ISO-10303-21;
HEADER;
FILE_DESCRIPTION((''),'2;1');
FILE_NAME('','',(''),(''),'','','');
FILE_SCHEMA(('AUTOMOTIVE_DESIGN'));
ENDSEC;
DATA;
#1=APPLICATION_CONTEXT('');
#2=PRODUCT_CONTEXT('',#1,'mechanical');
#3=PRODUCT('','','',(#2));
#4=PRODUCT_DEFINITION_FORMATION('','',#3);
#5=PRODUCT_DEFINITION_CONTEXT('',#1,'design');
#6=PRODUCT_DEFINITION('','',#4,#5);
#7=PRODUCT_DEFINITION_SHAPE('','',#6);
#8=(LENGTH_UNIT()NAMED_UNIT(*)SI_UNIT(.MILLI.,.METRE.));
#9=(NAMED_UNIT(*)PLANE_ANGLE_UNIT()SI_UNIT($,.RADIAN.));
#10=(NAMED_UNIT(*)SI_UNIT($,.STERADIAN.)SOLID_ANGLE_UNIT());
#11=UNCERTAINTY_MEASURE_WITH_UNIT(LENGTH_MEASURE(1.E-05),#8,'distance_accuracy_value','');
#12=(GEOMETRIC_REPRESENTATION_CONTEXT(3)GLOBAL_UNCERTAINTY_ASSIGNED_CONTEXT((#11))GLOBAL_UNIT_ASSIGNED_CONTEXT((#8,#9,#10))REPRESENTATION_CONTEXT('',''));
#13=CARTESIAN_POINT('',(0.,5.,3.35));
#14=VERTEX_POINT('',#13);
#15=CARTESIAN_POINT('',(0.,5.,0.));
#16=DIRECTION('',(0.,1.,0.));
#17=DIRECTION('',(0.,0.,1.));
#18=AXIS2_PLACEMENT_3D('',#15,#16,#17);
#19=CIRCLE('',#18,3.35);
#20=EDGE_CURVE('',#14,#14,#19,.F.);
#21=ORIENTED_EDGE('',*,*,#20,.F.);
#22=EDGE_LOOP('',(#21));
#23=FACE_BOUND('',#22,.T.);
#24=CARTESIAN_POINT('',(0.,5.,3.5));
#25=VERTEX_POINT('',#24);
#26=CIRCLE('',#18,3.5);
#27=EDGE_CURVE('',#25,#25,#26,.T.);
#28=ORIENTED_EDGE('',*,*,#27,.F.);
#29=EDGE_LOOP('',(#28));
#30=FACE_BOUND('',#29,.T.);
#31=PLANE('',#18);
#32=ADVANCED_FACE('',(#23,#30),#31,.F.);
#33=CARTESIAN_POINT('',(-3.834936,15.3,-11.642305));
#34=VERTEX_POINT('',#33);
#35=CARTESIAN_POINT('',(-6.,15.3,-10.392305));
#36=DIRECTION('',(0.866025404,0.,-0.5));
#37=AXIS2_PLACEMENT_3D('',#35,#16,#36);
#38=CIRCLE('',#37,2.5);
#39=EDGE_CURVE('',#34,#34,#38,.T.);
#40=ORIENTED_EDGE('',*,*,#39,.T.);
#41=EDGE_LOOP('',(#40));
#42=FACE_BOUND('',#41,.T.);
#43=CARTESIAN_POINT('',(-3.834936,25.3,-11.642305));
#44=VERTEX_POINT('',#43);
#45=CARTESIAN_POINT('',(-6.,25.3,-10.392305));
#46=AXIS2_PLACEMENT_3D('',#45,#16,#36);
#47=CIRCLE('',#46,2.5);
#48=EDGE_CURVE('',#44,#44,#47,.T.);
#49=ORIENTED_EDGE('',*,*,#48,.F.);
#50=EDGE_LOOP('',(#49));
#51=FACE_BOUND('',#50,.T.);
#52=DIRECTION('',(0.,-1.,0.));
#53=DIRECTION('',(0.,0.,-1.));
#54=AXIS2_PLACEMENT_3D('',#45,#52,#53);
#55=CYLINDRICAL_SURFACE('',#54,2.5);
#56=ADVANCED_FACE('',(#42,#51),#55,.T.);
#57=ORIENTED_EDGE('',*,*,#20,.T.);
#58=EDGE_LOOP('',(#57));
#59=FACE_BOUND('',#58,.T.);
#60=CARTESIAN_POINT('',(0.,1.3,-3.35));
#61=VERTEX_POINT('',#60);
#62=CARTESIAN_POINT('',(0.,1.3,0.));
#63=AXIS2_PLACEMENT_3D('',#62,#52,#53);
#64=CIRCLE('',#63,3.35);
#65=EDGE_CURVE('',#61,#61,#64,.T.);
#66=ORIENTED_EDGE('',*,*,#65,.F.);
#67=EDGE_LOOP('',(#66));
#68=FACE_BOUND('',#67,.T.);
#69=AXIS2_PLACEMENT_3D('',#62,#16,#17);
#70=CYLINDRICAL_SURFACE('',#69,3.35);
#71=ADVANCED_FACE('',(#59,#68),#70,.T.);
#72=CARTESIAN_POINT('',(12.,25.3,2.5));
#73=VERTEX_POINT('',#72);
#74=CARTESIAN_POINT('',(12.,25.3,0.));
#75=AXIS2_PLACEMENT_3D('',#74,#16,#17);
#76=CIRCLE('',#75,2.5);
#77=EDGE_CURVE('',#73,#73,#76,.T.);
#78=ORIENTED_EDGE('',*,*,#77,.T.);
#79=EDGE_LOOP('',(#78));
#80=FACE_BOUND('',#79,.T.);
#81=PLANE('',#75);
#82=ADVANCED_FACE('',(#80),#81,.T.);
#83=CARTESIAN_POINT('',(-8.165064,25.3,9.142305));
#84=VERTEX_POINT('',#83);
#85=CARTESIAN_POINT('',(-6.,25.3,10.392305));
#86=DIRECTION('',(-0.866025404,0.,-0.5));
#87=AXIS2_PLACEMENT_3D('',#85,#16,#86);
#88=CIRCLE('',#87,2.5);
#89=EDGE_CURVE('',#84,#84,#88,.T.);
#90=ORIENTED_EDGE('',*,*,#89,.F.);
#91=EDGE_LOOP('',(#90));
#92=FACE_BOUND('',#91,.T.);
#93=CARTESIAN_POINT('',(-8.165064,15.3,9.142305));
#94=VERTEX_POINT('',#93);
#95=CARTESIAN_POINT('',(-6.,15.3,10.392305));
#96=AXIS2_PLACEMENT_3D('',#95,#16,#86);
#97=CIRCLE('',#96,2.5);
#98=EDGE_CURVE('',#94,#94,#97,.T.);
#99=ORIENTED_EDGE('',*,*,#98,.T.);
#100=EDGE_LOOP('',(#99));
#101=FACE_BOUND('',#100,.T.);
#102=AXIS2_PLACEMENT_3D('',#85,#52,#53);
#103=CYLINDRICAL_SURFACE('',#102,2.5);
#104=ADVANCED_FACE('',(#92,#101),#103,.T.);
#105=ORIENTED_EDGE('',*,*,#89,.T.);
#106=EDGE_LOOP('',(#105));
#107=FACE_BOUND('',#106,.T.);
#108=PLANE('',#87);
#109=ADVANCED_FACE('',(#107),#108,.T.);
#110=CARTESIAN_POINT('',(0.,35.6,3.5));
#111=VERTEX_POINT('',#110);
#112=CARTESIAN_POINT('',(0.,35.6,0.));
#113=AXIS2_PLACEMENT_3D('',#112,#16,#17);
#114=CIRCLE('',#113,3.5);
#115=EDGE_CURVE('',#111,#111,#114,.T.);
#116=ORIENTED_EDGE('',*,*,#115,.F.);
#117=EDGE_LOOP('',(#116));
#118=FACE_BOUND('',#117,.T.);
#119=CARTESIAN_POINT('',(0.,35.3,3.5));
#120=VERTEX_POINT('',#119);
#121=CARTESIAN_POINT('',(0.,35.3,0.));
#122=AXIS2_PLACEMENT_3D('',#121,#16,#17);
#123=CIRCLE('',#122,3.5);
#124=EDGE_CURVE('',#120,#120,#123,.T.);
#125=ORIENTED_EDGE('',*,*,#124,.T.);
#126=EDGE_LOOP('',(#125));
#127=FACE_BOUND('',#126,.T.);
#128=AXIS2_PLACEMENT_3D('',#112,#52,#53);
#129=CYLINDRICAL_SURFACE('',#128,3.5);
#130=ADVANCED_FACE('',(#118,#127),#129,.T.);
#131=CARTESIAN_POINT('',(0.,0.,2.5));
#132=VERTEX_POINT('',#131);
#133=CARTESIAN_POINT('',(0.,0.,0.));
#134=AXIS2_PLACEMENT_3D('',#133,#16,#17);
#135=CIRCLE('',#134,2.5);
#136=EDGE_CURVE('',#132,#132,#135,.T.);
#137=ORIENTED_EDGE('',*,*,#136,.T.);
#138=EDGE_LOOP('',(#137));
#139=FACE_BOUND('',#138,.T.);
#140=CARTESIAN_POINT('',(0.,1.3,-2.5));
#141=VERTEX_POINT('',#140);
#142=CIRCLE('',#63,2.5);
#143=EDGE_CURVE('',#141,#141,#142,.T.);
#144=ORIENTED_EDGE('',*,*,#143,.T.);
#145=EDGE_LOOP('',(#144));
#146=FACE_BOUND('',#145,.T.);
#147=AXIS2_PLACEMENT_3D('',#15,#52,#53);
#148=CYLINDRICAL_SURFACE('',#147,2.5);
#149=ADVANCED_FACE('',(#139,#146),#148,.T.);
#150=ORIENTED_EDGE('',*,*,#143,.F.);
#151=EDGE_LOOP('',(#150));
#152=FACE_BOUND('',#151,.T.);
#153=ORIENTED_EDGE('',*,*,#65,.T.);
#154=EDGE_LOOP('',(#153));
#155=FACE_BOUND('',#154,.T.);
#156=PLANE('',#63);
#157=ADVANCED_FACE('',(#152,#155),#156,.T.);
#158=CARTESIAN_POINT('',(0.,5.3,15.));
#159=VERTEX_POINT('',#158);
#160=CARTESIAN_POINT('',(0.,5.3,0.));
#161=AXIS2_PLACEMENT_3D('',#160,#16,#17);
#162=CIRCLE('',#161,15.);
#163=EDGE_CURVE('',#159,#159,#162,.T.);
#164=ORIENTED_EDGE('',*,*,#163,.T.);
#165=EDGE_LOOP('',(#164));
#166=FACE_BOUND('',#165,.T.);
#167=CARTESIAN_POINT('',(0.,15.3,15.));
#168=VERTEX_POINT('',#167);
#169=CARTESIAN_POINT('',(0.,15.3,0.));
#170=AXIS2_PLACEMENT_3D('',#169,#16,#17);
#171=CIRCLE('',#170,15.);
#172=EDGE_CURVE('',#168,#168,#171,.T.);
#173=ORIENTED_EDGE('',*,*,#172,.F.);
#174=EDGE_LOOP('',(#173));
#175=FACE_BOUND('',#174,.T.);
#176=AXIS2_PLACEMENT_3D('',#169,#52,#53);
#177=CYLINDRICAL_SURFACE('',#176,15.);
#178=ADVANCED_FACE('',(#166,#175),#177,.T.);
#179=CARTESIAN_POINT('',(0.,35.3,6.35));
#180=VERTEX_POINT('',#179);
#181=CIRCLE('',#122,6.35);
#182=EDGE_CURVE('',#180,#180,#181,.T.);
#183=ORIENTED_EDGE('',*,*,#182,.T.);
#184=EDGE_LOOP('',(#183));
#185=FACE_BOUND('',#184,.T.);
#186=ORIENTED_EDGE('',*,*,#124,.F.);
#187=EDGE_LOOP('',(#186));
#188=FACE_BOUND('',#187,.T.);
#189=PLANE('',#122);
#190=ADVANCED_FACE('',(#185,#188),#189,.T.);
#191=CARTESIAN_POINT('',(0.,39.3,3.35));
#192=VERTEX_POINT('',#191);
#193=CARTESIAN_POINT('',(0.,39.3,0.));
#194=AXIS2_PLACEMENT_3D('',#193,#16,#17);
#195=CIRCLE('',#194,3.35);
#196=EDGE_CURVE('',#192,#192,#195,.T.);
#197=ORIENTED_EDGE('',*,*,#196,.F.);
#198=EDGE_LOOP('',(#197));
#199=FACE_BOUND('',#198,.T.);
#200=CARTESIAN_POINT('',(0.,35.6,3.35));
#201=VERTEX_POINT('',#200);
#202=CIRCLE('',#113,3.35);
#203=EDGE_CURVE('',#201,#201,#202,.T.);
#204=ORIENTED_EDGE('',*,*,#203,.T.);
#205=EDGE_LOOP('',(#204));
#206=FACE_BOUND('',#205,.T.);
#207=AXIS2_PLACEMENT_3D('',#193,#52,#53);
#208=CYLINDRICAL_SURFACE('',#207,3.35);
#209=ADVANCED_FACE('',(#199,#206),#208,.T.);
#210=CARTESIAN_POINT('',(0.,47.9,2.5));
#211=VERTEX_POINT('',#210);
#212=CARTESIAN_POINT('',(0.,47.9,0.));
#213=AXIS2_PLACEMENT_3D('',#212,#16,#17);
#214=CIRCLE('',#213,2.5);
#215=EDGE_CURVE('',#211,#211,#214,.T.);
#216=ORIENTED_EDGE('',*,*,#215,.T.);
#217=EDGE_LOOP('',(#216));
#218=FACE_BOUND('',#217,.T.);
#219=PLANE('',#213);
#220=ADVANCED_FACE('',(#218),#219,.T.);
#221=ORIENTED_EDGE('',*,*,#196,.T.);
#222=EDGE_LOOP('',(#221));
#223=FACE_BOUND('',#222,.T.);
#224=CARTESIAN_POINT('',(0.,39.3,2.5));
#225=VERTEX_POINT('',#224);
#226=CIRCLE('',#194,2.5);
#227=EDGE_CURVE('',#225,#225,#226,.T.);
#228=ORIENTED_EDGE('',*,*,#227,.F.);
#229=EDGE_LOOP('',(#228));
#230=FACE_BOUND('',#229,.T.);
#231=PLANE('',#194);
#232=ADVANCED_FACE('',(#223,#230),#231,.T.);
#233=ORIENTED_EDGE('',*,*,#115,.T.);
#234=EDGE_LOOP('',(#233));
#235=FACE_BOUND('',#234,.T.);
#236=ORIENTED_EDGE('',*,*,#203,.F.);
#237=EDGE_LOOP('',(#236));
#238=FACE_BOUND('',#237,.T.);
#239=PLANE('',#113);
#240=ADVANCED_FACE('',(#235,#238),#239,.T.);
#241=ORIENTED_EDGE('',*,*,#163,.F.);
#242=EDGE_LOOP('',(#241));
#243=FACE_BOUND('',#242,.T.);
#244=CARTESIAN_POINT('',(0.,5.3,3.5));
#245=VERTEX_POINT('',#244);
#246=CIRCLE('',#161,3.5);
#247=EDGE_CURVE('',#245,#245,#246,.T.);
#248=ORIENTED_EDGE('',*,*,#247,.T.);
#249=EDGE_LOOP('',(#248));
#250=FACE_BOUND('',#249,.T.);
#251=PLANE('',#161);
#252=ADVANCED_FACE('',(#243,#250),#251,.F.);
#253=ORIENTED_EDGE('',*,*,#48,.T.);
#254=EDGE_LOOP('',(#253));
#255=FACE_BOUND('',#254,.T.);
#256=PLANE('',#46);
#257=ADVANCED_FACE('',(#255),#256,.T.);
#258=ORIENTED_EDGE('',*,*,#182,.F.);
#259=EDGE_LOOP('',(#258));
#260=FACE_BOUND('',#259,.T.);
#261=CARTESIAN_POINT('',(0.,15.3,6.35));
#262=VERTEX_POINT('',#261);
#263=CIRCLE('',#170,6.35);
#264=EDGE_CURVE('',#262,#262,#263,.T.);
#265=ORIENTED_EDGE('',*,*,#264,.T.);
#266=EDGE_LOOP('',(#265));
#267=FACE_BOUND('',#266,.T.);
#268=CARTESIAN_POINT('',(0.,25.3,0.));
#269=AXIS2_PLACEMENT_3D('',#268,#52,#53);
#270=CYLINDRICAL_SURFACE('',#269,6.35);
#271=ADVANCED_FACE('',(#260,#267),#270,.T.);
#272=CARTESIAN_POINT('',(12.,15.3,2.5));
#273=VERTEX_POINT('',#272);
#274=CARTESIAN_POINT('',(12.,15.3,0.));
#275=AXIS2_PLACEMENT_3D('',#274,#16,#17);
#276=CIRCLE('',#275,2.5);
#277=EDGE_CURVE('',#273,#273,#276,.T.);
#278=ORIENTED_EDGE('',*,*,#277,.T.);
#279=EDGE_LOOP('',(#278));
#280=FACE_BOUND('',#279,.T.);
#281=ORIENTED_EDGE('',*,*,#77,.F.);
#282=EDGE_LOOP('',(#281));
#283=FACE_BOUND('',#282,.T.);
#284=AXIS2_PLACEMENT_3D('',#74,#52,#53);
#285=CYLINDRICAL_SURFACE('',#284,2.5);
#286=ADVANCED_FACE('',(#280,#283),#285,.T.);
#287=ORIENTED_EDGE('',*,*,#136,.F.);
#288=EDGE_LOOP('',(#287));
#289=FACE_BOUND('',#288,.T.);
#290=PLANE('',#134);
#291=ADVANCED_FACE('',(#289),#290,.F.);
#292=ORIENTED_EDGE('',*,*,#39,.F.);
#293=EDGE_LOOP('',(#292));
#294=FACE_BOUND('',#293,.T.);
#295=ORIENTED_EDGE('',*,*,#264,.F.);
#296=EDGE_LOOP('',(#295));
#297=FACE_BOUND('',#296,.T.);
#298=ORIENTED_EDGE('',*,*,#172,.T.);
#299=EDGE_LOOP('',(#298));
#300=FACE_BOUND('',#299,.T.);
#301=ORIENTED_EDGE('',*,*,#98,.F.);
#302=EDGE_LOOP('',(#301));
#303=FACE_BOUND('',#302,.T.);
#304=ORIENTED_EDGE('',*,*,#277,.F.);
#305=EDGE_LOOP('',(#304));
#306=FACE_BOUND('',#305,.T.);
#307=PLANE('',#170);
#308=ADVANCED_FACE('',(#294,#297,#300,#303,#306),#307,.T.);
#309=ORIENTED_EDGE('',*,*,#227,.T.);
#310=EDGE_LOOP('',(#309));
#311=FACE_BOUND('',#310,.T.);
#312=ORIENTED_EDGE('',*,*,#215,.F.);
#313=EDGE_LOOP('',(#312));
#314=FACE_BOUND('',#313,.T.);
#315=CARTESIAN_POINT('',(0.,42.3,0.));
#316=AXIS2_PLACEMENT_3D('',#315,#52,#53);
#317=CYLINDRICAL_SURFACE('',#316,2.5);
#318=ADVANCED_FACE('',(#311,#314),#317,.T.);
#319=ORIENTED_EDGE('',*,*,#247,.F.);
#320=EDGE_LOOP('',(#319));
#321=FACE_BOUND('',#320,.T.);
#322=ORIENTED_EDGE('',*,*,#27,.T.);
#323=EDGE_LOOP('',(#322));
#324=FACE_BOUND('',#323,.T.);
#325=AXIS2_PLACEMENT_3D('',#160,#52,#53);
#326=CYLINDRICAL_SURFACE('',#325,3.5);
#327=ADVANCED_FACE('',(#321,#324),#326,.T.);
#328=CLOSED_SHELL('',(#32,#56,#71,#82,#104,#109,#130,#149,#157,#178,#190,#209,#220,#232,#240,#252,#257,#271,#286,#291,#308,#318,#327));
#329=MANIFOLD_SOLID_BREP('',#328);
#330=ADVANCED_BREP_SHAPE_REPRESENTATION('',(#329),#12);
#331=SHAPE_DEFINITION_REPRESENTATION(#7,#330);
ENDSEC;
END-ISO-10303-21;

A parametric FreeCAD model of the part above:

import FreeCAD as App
import Part
import Sketcher

V = App.Vector
Q = App.Units.Quantity

doc = App.newDocument("Part")
params = doc.addObject("Spreadsheet::Sheet", "Params")
for row, (alias, value) in enumerate([
    ("sketch1_diameter", "5 mm"),
    ("pad1_length", "5 mm"),
    ("sketch2_diameter", "7 mm"),
    ("pad2_length", "0.3 mm"),
    ("sketch3_diameter", "30 mm"),
    ("pad3_length", "10 mm"),
    ("sketch4_diameter", "12.7 mm"),
    ("pad4_length", "10 mm"),
    ("sketch5_diameter", "12.7 mm"),
    ("pad5_length", "10 mm"),
    ("sketch6_diameter", "7 mm"),
    ("pad6_length", "0.3 mm"),
    ("sketch7_diameter", "6.7 mm"),
    ("pad7_length", "3.7 mm"),
    ("sketch8_diameter", "5 mm"),
    ("pad8_length", "3 mm"),
    ("sketch9_diameter", "6.7 mm"),
    ("pad9_length", "3.7 mm"),
    ("sketch10_diameter", "5 mm"),
    ("pad10_length", "5.6 mm"),
    ("sketch11_diameter", "5 mm"),
    ("pad11_length", "10 mm"),
], start=1):
    params.set(f"A{row}", alias)
    params.set(f"B{row}", "=" + value)
    params.setAlias(f"B{row}", alias)

body = doc.addObject("PartDesign::Body", "Body")

sketch1 = body.newObject("Sketcher::SketchObject", "Sketch")
sketch1.AttachmentSupport = (doc.getObject("XZ_Plane"), [""])
sketch1.MapMode = "FlatFace"
sketch1.addGeometry(Part.Circle(V(0, 0, 0), V(0, 0, 1), 2.5), False)
sketch1.addConstraint([
    Sketcher.Constraint("Coincident", 0, 3, -1, 1),
    Sketcher.Constraint("Diameter", 0, Q("5 mm")),
])
sketch1.setExpression("Constraints[1]", "Params.sketch1_diameter")
pad1 = body.newObject("PartDesign::Pad", "Pad")
pad1.Profile = sketch1
pad1.setExpression("Length", "Params.pad1_length")
pad1.Reversed = True

sketch2 = body.newObject("Sketcher::SketchObject", "Sketch001")
sketch2.AttachmentSupport = (doc.getObject("XZ_Plane"), [""])
sketch2.MapMode = "FlatFace"
sketch2.AttachmentOffset = App.Placement(V(0, 0, -5), App.Rotation())
sketch2.addGeometry(Part.Circle(V(0, 0, 0), V(0, 0, 1), 3.5), False)
sketch2.addConstraint([
    Sketcher.Constraint("Coincident", 0, 3, -1, 1),
    Sketcher.Constraint("Diameter", 0, Q("7 mm")),
])
sketch2.setExpression("Constraints[1]", "Params.sketch2_diameter")
pad2 = body.newObject("PartDesign::Pad", "Pad001")
pad2.Profile = sketch2
pad2.setExpression("Length", "Params.pad2_length")
pad2.Reversed = True

sketch3 = body.newObject("Sketcher::SketchObject", "Sketch002")
sketch3.AttachmentSupport = (doc.getObject("XZ_Plane"), [""])
sketch3.MapMode = "FlatFace"
sketch3.AttachmentOffset = App.Placement(V(0, 0, -5.3), App.Rotation())
sketch3.addGeometry(Part.Circle(V(0, 0, 0), V(0, 0, 1), 15), False)
sketch3.addConstraint([
    Sketcher.Constraint("Coincident", 0, 3, -1, 1),
    Sketcher.Constraint("Diameter", 0, Q("30 mm")),
])
sketch3.setExpression("Constraints[1]", "Params.sketch3_diameter")
pad3 = body.newObject("PartDesign::Pad", "Pad002")
pad3.Profile = sketch3
pad3.setExpression("Length", "Params.pad3_length")
pad3.Reversed = True

sketch4 = body.newObject("Sketcher::SketchObject", "Sketch003")
sketch4.AttachmentSupport = (doc.getObject("XZ_Plane"), [""])
sketch4.MapMode = "FlatFace"
sketch4.AttachmentOffset = App.Placement(V(0, 0, -15.3), App.Rotation())
sketch4.addGeometry(Part.Circle(V(0, 0, 0), V(0, 0, 1), 6), False)
sketch4.addConstraint([
    Sketcher.Constraint("Coincident", 0, 3, -1, 1),
    Sketcher.Constraint("Diameter", 0, Q("12.7 mm")),
])
sketch4.setExpression("Constraints[1]", "Params.sketch4_diameter")
pad4 = body.newObject("PartDesign::Pad", "Pad003")
pad4.Profile = sketch4
pad4.setExpression("Length", "Params.pad4_length")
pad4.Reversed = True

sketch5 = body.newObject("Sketcher::SketchObject", "Sketch004")
sketch5.AttachmentSupport = (doc.getObject("XZ_Plane"), [""])
sketch5.MapMode = "FlatFace"
sketch5.AttachmentOffset = App.Placement(V(0, 0, -25.3), App.Rotation())
sketch5.addGeometry(Part.Circle(V(0, 0, 0), V(0, 0, 1), 6), False)
sketch5.addConstraint([
    Sketcher.Constraint("Coincident", 0, 3, -1, 1),
    Sketcher.Constraint("Diameter", 0, Q("12.7 mm")),
])
sketch5.setExpression("Constraints[1]", "Params.sketch5_diameter")
pad5 = body.newObject("PartDesign::Pad", "Pad004")
pad5.Profile = sketch5
pad5.setExpression("Length", "Params.pad5_length")
pad5.Reversed = True

sketch6 = body.newObject("Sketcher::SketchObject", "Sketch005")
sketch6.AttachmentSupport = (doc.getObject("XZ_Plane"), [""])
sketch6.MapMode = "FlatFace"
sketch6.AttachmentOffset = App.Placement(V(0, 0, -35.3), App.Rotation())
sketch6.addGeometry(Part.Circle(V(0, 0, 0), V(0, 0, 1), 3.5), False)
sketch6.addConstraint([
    Sketcher.Constraint("Coincident", 0, 3, -1, 1),
    Sketcher.Constraint("Diameter", 0, Q("7 mm")),
])
sketch6.setExpression("Constraints[1]", "Params.sketch6_diameter")
pad6 = body.newObject("PartDesign::Pad", "Pad005")
pad6.Profile = sketch6
pad6.setExpression("Length", "Params.pad6_length")
pad6.Reversed = True

sketch7 = body.newObject("Sketcher::SketchObject", "Sketch006")
sketch7.AttachmentSupport = (doc.getObject("XZ_Plane"), [""])
sketch7.MapMode = "FlatFace"
sketch7.AttachmentOffset = App.Placement(V(0, 0, -35.6), App.Rotation())
sketch7.addGeometry(Part.Circle(V(0, 0, 0), V(0, 0, 1), 3.4), False)
sketch7.addConstraint([
    Sketcher.Constraint("Coincident", 0, 3, -1, 1),
    Sketcher.Constraint("Diameter", 0, Q("6.7 mm")),
])
sketch7.setExpression("Constraints[1]", "Params.sketch7_diameter")
pad7 = body.newObject("PartDesign::Pad", "Pad006")
pad7.Profile = sketch7
pad7.setExpression("Length", "Params.pad7_length")
pad7.Reversed = True

sketch8 = body.newObject("Sketcher::SketchObject", "Sketch007")
sketch8.AttachmentSupport = (doc.getObject("XZ_Plane"), [""])
sketch8.MapMode = "FlatFace"
sketch8.AttachmentOffset = App.Placement(V(0, 0, -39.3), App.Rotation())
sketch8.addGeometry(Part.Circle(V(0, 0, 0), V(0, 0, 1), 2.5), False)
sketch8.addConstraint([
    Sketcher.Constraint("Coincident", 0, 3, -1, 1),
    Sketcher.Constraint("Diameter", 0, Q("5 mm")),
])
sketch8.setExpression("Constraints[1]", "Params.sketch8_diameter")
pad8 = body.newObject("PartDesign::Pad", "Pad007")
pad8.Profile = sketch8
pad8.setExpression("Length", "Params.pad8_length")
pad8.Reversed = True

sketch9 = body.newObject("Sketcher::SketchObject", "Sketch008")
sketch9.AttachmentSupport = (doc.getObject("XZ_Plane"), [""])
sketch9.MapMode = "FlatFace"
sketch9.AttachmentOffset = App.Placement(V(0, 0, -1.3), App.Rotation())
sketch9.addGeometry(Part.Circle(V(0, 0, 0), V(0, 0, 1), 3.4), False)
sketch9.addConstraint([
    Sketcher.Constraint("Coincident", 0, 3, -1, 1),
    Sketcher.Constraint("Diameter", 0, Q("6.7 mm")),
])
sketch9.setExpression("Constraints[1]", "Params.sketch9_diameter")
pad9 = body.newObject("PartDesign::Pad", "Pad008")
pad9.Profile = sketch9
pad9.setExpression("Length", "Params.pad9_length")
pad9.Reversed = True

sketch10 = body.newObject("Sketcher::SketchObject", "Sketch009")
sketch10.AttachmentSupport = (doc.getObject("XZ_Plane"), [""])
sketch10.MapMode = "FlatFace"
sketch10.AttachmentOffset = App.Placement(V(0, 0, -42.3), App.Rotation())
sketch10.addGeometry(Part.Circle(V(0, 0, 0), V(0, 0, 1), 2.5), False)
sketch10.addConstraint([
    Sketcher.Constraint("Coincident", 0, 3, -1, 1),
    Sketcher.Constraint("Diameter", 0, Q("5 mm")),
])
sketch10.setExpression("Constraints[1]", "Params.sketch10_diameter")
pad10 = body.newObject("PartDesign::Pad", "Pad009")
pad10.Profile = sketch10
pad10.setExpression("Length", "Params.pad10_length")
pad10.Reversed = True

sketch11 = body.newObject("Sketcher::SketchObject", "Sketch010")
sketch11.AttachmentSupport = (doc.getObject("XZ_Plane"), [""])
sketch11.MapMode = "FlatFace"
sketch11.AttachmentOffset = App.Placement(V(0, 0, -15.3), App.Rotation())
sketch11.addGeometry(Part.Circle(V(12, 0, 0), V(0, 0, 1), 2.5), False)
sketch11.addConstraint([
    Sketcher.Constraint("PointOnObject", 0, 3, -1),
    Sketcher.Constraint("Diameter", 0, Q("5 mm")),
    Sketcher.Constraint("DistanceX", -1, 1, 0, 3, Q("12 mm")),
])
sketch11.setExpression("Constraints[1]", "Params.sketch11_diameter")
pad11 = body.newObject("PartDesign::Pad", "Pad010")
pad11.Profile = sketch11
pad11.setExpression("Length", "Params.pad11_length")
pad11.Reversed = True
doc.recompute()

polarpattern = body.newObject("PartDesign::PolarPattern", "PolarPattern")
polarpattern.Originals = [pad11]
polarpattern.Axis = (doc.getObject("Y_Axis"), [""])
polarpattern.Angle = 360
polarpattern.Occurrences = 3
body.Tip = polarpattern

doc.recompute()
